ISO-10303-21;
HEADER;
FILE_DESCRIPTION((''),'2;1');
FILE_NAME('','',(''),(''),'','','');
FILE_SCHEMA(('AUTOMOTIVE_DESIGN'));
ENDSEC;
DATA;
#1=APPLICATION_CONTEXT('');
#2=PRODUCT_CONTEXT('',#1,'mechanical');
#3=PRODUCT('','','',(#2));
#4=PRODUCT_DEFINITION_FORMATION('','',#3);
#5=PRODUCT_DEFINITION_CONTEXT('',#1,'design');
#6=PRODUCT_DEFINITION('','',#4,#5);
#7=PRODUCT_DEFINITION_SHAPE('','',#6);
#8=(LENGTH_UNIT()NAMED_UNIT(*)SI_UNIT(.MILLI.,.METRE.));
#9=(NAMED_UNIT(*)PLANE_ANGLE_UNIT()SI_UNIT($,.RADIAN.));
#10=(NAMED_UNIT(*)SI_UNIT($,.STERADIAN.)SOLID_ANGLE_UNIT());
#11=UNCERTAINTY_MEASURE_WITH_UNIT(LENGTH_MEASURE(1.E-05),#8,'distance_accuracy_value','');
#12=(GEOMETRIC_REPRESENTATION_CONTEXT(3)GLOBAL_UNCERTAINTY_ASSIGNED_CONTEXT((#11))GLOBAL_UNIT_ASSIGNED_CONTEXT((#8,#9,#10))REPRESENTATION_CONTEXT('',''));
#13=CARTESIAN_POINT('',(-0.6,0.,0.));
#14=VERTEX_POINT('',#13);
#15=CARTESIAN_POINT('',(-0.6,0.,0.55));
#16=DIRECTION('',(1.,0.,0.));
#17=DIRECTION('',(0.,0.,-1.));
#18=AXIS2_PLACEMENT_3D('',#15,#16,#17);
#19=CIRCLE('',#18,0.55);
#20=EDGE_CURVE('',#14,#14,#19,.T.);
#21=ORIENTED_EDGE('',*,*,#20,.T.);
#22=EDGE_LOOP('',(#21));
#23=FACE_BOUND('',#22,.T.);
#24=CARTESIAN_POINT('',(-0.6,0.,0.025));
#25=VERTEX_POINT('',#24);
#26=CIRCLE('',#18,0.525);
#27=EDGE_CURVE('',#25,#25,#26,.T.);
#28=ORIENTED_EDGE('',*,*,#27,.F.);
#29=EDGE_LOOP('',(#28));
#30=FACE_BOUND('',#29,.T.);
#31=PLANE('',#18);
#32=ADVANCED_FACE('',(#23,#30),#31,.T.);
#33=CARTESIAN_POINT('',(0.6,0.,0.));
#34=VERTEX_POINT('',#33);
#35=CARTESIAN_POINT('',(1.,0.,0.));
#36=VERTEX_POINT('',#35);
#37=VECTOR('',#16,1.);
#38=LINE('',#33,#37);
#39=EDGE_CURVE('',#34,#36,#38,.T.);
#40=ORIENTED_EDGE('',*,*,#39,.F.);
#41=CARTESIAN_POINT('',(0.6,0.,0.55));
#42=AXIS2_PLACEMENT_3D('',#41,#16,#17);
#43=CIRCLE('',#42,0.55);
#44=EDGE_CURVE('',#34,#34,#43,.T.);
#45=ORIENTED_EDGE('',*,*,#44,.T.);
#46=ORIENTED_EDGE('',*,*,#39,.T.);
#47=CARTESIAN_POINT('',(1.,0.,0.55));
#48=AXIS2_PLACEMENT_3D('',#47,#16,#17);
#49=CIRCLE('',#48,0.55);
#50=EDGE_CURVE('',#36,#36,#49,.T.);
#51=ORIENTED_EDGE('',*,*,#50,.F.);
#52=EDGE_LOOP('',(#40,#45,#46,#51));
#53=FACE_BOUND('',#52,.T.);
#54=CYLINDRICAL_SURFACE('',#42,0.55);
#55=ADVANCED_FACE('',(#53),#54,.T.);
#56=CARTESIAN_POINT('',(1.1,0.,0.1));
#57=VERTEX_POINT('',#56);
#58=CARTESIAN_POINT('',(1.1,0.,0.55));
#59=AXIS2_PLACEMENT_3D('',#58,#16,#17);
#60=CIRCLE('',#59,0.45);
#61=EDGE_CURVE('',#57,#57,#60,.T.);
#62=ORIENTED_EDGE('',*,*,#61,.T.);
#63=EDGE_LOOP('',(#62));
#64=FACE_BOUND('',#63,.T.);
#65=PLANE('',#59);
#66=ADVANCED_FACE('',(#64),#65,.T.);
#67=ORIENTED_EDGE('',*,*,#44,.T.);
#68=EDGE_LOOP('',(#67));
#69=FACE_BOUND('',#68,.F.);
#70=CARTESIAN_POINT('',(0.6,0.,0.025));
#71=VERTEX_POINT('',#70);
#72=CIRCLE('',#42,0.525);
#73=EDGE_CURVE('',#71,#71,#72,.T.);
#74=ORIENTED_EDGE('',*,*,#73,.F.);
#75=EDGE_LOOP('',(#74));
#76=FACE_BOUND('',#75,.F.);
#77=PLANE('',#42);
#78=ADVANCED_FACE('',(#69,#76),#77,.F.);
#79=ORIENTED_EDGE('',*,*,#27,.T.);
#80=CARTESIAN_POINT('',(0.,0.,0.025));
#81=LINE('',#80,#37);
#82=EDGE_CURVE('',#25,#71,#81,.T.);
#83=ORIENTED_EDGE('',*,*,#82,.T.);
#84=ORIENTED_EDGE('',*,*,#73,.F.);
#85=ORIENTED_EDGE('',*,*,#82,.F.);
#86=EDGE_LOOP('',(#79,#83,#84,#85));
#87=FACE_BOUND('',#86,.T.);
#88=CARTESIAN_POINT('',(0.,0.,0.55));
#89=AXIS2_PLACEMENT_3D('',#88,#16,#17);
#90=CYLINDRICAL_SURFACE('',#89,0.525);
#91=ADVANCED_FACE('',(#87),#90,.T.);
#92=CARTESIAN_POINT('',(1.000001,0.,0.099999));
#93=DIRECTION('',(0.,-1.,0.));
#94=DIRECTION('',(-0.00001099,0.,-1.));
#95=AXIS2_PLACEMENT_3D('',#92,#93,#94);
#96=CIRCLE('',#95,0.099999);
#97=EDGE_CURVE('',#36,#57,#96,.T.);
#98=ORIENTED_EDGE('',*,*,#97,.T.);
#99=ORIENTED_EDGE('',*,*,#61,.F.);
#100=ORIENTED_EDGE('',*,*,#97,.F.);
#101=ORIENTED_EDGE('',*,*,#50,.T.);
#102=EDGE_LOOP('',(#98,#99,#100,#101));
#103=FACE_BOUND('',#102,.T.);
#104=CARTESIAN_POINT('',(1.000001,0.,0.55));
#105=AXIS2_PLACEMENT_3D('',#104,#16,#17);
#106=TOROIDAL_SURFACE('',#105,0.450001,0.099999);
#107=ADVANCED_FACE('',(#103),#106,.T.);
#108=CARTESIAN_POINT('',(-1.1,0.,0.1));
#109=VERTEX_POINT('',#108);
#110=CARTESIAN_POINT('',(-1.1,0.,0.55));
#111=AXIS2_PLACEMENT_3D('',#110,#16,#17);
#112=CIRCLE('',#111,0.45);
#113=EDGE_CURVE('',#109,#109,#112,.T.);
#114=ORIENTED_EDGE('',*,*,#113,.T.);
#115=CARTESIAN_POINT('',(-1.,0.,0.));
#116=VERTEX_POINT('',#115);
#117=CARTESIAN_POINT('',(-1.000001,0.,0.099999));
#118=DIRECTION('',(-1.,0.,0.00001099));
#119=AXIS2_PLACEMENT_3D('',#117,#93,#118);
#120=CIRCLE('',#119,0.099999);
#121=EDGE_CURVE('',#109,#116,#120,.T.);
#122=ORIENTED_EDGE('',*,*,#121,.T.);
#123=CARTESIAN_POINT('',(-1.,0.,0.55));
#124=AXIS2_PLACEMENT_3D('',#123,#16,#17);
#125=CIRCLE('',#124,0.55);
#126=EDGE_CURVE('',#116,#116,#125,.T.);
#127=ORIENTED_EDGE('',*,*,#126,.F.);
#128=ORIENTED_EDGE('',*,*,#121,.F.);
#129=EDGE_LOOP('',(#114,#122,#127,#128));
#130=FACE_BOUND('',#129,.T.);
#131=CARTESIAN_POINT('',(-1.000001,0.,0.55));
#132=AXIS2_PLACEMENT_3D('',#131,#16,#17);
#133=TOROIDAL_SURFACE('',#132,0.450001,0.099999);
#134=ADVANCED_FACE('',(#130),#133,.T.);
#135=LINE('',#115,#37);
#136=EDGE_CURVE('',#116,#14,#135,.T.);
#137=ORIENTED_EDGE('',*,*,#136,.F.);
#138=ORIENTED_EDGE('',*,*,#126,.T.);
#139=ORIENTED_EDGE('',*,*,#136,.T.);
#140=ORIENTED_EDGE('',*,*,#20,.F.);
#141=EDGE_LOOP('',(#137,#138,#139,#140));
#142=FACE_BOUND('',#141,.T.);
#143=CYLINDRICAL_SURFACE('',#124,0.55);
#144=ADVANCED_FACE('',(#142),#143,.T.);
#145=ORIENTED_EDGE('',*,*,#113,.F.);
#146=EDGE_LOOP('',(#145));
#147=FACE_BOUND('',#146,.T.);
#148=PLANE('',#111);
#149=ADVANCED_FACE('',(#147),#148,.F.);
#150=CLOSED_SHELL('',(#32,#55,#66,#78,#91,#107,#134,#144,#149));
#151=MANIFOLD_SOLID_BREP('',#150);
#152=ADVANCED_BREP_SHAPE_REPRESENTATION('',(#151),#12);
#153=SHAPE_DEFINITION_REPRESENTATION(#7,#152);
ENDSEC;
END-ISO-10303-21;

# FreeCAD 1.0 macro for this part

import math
import FreeCAD as App
import Part
import Sketcher


def add_polygon(sketch, points):
    """Adds a closed chain of lines whose ends are joined by coincident constraints."""
    first, n = sketch.GeometryCount, len(points)
    for a, b in zip(points, points[1:] + points[:1]):
        sketch.addGeometry(Part.LineSegment(App.Vector(*a, 0), App.Vector(*b, 0)), False)
    for i in range(n):
        sketch.addConstraint(Sketcher.Constraint("Coincident", first + i, 2, first + (i + 1) % n, 1))

doc = App.newDocument("Part")
params = doc.addObject("Spreadsheet::Sheet", "Params")
for row, (alias, value) in enumerate([
    ("sketch1_width", "1.7 mm"),
    ("revolution_angle", "360 deg"),
    ("sketch2_radius", "0.099999 mm"),
    ("sketch2_width", "0.4 mm"),
    ("sketch2_width2", "1.2 mm"),
    ("sketch2_height", "0.45 mm"),
    ("revolution2_angle", "360 deg"),
], start=1):
    params.set(f"A{row}", alias)
    params.set(f"B{row}", "=" + value)
    params.setAlias(f"B{row}", alias)

body = doc.addObject("PartDesign::Body", "Body")

# Sketch on XZ plane
sketch1 = body.newObject("Sketcher::SketchObject", "Sketch")
sketch1.AttachmentSupport = (doc.getObject("XZ_Plane"), [""])
sketch1.MapMode = "FlatFace"
add_polygon(sketch1, [(-0.8, 0.6), (-0.8, 0), (0.8, 0), (0.8, 0.6)])  # lines 0-3
sketch1.addGeometry(Part.LineSegment(App.Vector(-0.8, 0.6, 0), App.Vector(0.8, 0.6, 0)), True)  # axis
sketch1.addConstraint(Sketcher.Constraint("Vertical", 0))
sketch1.addConstraint(Sketcher.Constraint("Horizontal", 1))
sketch1.addConstraint(Sketcher.Constraint("Vertical", 2))
sketch1.addConstraint(Sketcher.Constraint("Horizontal", 3))
sketch1.addConstraint(Sketcher.Constraint("Horizontal", 4))
sketch1.addConstraint(Sketcher.Constraint("Coincident", 4, 1, 3, 2))
sketch1.addConstraint(Sketcher.Constraint("Vertical", 1, 2, 4, 2))
sketch1.addConstraint(Sketcher.Constraint("DistanceX", 1, 1, 1, 2, 1.7))
sketch1.addConstraint(Sketcher.Constraint("DistanceY", 0, 2, 0, 1, 0.525))
sketch1.addConstraint(Sketcher.Constraint("DistanceX", 0, 2, -1, 1, 0.85))
sketch1.addConstraint(Sketcher.Constraint("DistanceY", -1, 1, 2, 2, 0.55))
sketch1.setExpression("Constraints[11]", "Params.sketch1_width")
revolution = body.newObject("PartDesign::Revolution", "Revolution")
revolution.Profile = sketch1
revolution.ReferenceAxis = (sketch1, ["Axis0"])
revolution.setExpression("Angle", "Params.revolution_angle")
body2 = doc.addObject("PartDesign::Body", "Body001")

# Sketch on XZ plane
sketch2 = body2.newObject("Sketcher::SketchObject", "Sketch001")
sketch2.AttachmentSupport = (doc.getObject("XZ_Plane001"), [""])
sketch2.MapMode = "FlatFace"
sketch2.addGeometry(Part.LineSegment(App.Vector(-1, 0, 0), App.Vector(-0.6, 0, 0)), False)
sketch2.addGeometry(Part.LineSegment(App.Vector(-0.6, 0, 0), App.Vector(-0.6, 0.45, 0)), False)
sketch2.addGeometry(Part.LineSegment(App.Vector(-0.6, 0.45, 0), App.Vector(0.6, 0.45, 0)), False)
sketch2.addGeometry(Part.LineSegment(App.Vector(0.6, 0.45, 0), App.Vector(0.6, 0, 0)), False)
sketch2.addGeometry(Part.LineSegment(App.Vector(0.6, 0, 0), App.Vector(1, 0, 0)), False)
sketch2.addGeometry(Part.ArcOfCircle(Part.Circle(App.Vector(1, 0.1, 0), App.Vector(0, 0, 1), 0.1), math.radians(-90), math.radians(0)), False)
sketch2.addGeometry(Part.LineSegment(App.Vector(1.1, 0.1, 0), App.Vector(1.1, 0.55, 0)), False)
sketch2.addGeometry(Part.LineSegment(App.Vector(1.1, 0.55, 0), App.Vector(-1.1, 0.55, 0)), False)
sketch2.addGeometry(Part.LineSegment(App.Vector(-1.1, 0.55, 0), App.Vector(-1.1, 0.1, 0)), False)
sketch2.addGeometry(Part.ArcOfCircle(Part.Circle(App.Vector(-1, 0.1, 0), App.Vector(0, 0, 1), 0.1), math.radians(180), math.radians(270)), False)
sketch2.addGeometry(Part.LineSegment(App.Vector(-1.1, 0.55, 0), App.Vector(1.1, 0.55, 0)), True)  # axis
sketch2.addConstraint(Sketcher.Constraint("Coincident", 0, 2, 1, 1))
sketch2.addConstraint(Sketcher.Constraint("Coincident", 1, 2, 2, 1))
sketch2.addConstraint(Sketcher.Constraint("Coincident", 2, 2, 3, 1))
sketch2.addConstraint(Sketcher.Constraint("Coincident", 3, 2, 4, 1))
sketch2.addConstraint(Sketcher.Constraint("Coincident", 4, 2, 5, 1))
sketch2.addConstraint(Sketcher.Constraint("Coincident", 5, 2, 6, 1))
sketch2.addConstraint(Sketcher.Constraint("Coincident", 6, 2, 7, 1))
sketch2.addConstraint(Sketcher.Constraint("Coincident", 7, 2, 8, 1))
sketch2.addConstraint(Sketcher.Constraint("Coincident", 8, 2, 9, 1))
sketch2.addConstraint(Sketcher.Constraint("Coincident", 9, 2, 0, 1))
sketch2.addConstraint(Sketcher.Constraint("Horizontal", 0))
sketch2.addConstraint(Sketcher.Constraint("Vertical", 1))
sketch2.addConstraint(Sketcher.Constraint("Horizontal", 2))
sketch2.addConstraint(Sketcher.Constraint("Vertical", 3))
sketch2.addConstraint(Sketcher.Constraint("Horizontal", 4))
sketch2.addConstraint(Sketcher.Constraint("Vertical", 6))
sketch2.addConstraint(Sketcher.Constraint("Horizontal", 7))
sketch2.addConstraint(Sketcher.Constraint("Vertical", 8))
sketch2.addConstraint(Sketcher.Constraint("Horizontal", 10))
sketch2.addConstraint(Sketcher.Constraint("Coincident", 10, 1, 7, 2))
sketch2.addConstraint(Sketcher.Constraint("Equal", 5, 9))
sketch2.addConstraint(Sketcher.Constraint("Symmetric", 0, 2, 3, 2, -1, 1))
sketch2.addConstraint(Sketcher.Constraint("Symmetric", 5, 3, 9, 3, -2))
sketch2.addConstraint(Sketcher.Constraint("Horizontal", 9, 3, 5, 2))
sketch2.addConstraint(Sketcher.Constraint("Horizontal", 5, 2, 8, 2))
sketch2.addConstraint(Sketcher.Constraint("Vertical", 5, 3, 4, 2))
sketch2.addConstraint(Sketcher.Constraint("Vertical", 5, 2, 10, 2))
sketch2.addConstraint(Sketcher.Constraint("Equal", 0, 4))
sketch2.addConstraint(Sketcher.Constraint("Equal", 3, 6))
sketch2.addConstraint(Sketcher.Constraint("Radius", 5, 0.099999))
sketch2.addConstraint(Sketcher.Constraint("DistanceX", 0, 1, 0, 2, 0.4))
sketch2.addConstraint(Sketcher.Constraint("DistanceX", 2, 1, 2, 2, 1.2))
sketch2.addConstraint(Sketcher.Constraint("DistanceY", 1, 1, 1, 2, 0.45))
sketch2.setExpression("Constraints[29]", "Params.sketch2_radius")
sketch2.setExpression("Constraints[30]", "Params.sketch2_width")
sketch2.setExpression("Constraints[31]", "Params.sketch2_width2")
sketch2.setExpression("Constraints[32]", "Params.sketch2_height")
revolution2 = body2.newObject("PartDesign::Revolution", "Revolution001")
revolution2.Profile = sketch2
revolution2.ReferenceAxis = (sketch2, ["Axis0"])
revolution2.setExpression("Angle", "Params.revolution2_angle")
doc.recompute()

boolean = body2.newObject("PartDesign::Boolean", "Boolean")
boolean.Type = "Fuse"
boolean.addObjects([body])

doc.recompute()
